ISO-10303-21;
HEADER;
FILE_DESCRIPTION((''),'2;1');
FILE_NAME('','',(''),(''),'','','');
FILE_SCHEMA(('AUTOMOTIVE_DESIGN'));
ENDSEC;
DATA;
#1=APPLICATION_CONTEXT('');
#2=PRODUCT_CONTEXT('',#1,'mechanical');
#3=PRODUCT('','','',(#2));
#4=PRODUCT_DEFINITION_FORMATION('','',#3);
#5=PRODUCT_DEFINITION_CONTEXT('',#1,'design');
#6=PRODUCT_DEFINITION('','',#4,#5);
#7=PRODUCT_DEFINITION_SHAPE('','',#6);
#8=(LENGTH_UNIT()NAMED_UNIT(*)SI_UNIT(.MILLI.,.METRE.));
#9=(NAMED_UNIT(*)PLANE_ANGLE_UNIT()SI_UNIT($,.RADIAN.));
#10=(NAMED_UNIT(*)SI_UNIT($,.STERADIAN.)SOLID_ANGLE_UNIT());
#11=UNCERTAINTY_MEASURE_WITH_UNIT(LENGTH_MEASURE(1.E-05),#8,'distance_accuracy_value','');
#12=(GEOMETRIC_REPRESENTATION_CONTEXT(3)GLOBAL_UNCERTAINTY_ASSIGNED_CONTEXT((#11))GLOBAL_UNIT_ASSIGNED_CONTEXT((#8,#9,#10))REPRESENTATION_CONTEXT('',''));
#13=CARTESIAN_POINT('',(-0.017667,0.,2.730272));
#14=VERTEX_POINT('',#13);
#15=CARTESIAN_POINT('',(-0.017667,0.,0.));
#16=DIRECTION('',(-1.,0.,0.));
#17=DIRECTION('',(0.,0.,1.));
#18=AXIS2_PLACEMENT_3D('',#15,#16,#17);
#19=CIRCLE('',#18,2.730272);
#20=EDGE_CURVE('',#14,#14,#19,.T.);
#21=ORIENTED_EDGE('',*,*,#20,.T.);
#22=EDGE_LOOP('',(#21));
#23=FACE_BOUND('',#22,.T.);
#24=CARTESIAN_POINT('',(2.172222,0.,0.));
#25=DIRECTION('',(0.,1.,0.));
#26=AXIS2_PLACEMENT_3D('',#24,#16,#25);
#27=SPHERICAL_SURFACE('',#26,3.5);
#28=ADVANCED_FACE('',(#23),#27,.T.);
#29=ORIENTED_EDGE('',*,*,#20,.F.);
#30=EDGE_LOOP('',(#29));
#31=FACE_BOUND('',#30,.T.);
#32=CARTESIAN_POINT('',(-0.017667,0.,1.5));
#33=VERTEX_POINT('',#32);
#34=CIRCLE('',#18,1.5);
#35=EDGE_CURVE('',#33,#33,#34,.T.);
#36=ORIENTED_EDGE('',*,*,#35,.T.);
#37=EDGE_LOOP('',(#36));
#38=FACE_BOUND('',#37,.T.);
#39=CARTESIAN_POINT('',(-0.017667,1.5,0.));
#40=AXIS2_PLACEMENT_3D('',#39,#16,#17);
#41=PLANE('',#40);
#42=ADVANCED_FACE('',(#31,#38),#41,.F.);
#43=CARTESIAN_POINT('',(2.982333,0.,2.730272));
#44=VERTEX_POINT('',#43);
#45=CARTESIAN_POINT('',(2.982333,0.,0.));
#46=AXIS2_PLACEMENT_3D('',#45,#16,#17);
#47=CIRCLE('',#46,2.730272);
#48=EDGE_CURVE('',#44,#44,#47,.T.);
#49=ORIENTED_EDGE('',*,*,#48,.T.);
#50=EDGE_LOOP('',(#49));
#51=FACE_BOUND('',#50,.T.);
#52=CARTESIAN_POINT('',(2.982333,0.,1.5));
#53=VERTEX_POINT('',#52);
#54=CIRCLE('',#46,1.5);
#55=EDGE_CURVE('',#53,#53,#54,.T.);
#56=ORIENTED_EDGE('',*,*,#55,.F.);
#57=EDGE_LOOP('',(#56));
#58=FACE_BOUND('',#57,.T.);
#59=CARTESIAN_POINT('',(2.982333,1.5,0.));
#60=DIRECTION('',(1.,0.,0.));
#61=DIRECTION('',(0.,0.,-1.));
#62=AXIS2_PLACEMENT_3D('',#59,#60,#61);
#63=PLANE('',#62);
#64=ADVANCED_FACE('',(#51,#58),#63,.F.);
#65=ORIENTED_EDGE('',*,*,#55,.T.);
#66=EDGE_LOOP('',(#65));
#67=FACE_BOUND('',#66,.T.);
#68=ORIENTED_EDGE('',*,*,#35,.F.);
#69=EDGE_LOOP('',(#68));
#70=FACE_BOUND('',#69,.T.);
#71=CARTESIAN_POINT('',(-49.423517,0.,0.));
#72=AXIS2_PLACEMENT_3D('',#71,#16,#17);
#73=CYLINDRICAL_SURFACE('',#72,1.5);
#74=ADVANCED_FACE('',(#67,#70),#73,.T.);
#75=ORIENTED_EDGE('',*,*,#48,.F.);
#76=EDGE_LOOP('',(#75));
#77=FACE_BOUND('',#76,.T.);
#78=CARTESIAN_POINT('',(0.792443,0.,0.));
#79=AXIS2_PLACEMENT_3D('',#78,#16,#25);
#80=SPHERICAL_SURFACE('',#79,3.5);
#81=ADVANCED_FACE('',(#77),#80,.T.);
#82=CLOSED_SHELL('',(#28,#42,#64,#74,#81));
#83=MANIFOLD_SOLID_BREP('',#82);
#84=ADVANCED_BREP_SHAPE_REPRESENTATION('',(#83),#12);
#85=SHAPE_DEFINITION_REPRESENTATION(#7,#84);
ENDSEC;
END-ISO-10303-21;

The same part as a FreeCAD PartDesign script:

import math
import FreeCAD as App
import Part
import Sketcher
Q = App.Units.Quantity

doc = App.newDocument("Part")
body = doc.addObject("PartDesign::Body", "Body")

# Sketch on XY plane
sketch1 = doc.addObject("Sketcher::SketchObject", "Sketch")
body.addObject(sketch1)
sketch1.AttachmentSupport = (doc.XY_Plane, [""])
sketch1.MapMode = "FlatFace"
sketch1.addGeometry(Part.LineSegment(App.Vector(0, 1.5, 0), App.Vector(0, 2.7, 0)), False)
sketch1.addGeometry(Part.ArcOfCircle(Part.Circle(App.Vector(2.2, 0, 0), App.Vector(0, 0, 1), 3.5), math.radians(129), math.radians(180)), False)
sketch1.addGeometry(Part.LineSegment(App.Vector(-1.3, 0, 0), App.Vector(4.3, 0, 0)), False)
sketch1.addGeometry(Part.ArcOfCircle(Part.Circle(App.Vector(0.8, 0, 0), App.Vector(0, 0, 1), 3.5), math.radians(0), math.radians(51)), False)
sketch1.addGeometry(Part.LineSegment(App.Vector(3, 2.7, 0), App.Vector(3, 1.5, 0)), False)
sketch1.addGeometry(Part.LineSegment(App.Vector(3, 1.5, 0), App.Vector(0, 1.5, 0)), False)
sketch1.addConstraint(Sketcher.Constraint("Coincident", 0, 2, 1, 1))
sketch1.addConstraint(Sketcher.Constraint("Coincident", 1, 2, 2, 1))
sketch1.addConstraint(Sketcher.Constraint("Coincident", 2, 2, 3, 1))
sketch1.addConstraint(Sketcher.Constraint("Coincident", 3, 2, 4, 1))
sketch1.addConstraint(Sketcher.Constraint("Coincident", 4, 2, 5, 1))
sketch1.addConstraint(Sketcher.Constraint("Coincident", 5, 2, 0, 1))
sketch1.addConstraint(Sketcher.Constraint("Vertical", 0))
sketch1.addConstraint(Sketcher.Constraint("Horizontal", 2))
sketch1.addConstraint(Sketcher.Constraint("Vertical", 4))
sketch1.addConstraint(Sketcher.Constraint("Horizontal", 5))
sketch1.addConstraint(Sketcher.Constraint("Equal", 1, 3))
sketch1.addConstraint(Sketcher.Constraint("PointOnObject", 1, 3, -1))
sketch1.addConstraint(Sketcher.Constraint("PointOnObject", 3, 3, -1))
sketch1.addConstraint(Sketcher.Constraint("PointOnObject", 1, 2, -1))
sketch1.addConstraint(Sketcher.Constraint("Horizontal", 0, 2, 3, 2))
sketch1.addConstraint(Sketcher.Constraint("Radius", 1, Q("3.5 mm")))
sketch1.addConstraint(Sketcher.Constraint("DistanceX", 5, 2, 5, 1, Q("3 mm")))
sketch1.addConstraint(Sketcher.Constraint("DistanceY", -1, 1, 4, 2, Q("1.5 mm")))
sketch1.addConstraint(Sketcher.Constraint("DistanceX", 2, 1, 2, 2, Q("5.620221 mm")))
sketch1.addConstraint(Sketcher.Constraint("DistanceX", -1, 1, 1, 3, Q("2.172222 mm")))
revolution = doc.addObject("PartDesign::Revolution", "Revolution")
body.addObject(revolution)
revolution.Profile = sketch1
revolution.ReferenceAxis = (sketch1, ["H_Axis"])
revolution.Angle = 360

doc.recompute()
